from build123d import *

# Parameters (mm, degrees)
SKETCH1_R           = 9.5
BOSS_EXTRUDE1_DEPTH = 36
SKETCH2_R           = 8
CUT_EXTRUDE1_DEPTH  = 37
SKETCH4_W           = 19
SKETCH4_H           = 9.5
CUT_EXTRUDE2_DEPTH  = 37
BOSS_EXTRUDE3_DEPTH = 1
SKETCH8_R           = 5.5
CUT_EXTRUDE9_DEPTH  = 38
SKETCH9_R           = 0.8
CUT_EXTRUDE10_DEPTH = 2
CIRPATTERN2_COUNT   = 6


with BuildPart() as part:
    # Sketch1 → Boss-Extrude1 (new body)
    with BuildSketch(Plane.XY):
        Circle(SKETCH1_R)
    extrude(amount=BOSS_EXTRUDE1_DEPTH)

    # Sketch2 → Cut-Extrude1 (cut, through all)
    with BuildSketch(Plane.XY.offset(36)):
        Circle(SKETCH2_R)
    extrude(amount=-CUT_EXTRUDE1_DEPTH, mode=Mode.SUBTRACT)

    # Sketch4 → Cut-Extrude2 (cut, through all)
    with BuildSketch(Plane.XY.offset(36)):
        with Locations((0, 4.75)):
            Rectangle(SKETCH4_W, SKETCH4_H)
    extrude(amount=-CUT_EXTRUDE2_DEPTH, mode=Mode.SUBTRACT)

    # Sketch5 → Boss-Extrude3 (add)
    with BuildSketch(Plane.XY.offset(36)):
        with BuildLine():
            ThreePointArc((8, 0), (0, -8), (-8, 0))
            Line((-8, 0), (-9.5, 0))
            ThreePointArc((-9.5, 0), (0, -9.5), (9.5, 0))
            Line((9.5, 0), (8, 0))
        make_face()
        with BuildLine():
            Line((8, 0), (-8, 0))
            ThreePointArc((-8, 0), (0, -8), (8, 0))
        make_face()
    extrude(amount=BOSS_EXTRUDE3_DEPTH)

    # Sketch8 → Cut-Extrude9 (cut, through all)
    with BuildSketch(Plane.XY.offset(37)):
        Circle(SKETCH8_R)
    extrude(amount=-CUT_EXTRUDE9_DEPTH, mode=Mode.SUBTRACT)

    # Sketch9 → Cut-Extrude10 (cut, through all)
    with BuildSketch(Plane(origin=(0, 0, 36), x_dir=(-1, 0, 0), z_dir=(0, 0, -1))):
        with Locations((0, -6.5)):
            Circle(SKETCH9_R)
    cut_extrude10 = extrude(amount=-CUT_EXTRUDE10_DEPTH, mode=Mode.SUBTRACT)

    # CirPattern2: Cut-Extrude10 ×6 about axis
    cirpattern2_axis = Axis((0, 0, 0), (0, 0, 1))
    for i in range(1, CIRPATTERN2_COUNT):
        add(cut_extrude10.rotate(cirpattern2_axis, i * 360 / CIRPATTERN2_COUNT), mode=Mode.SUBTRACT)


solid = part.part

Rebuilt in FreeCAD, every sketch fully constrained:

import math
import FreeCAD as App
import Part
import Sketcher

V = App.Vector

doc = App.newDocument("Part")
params = doc.addObject("Spreadsheet::Sheet", "Params")
for row, (alias, value) in enumerate([
    ("sketch1_diameter", "19 mm"),
    ("pad1_length", "36 mm"),
    ("sketch2_diameter", "16 mm"),
    ("sketch3_width", "19 mm"),
    ("sketch3_height", "9.5 mm"),
    ("sketch4_radius", "9.5 mm"),
    ("pad2_length", "1 mm"),
    ("sketch5_diameter", "11 mm"),
    ("sketch6_diameter", "1.6 mm"),
], start=1):
    params.set(f"A{row}", alias)
    params.set(f"B{row}", "=" + value)
    params.setAlias(f"B{row}", alias)

body = doc.addObject("PartDesign::Body", "Body")

# Sketch on XY plane
sketch1 = body.newObject("Sketcher::SketchObject", "Sketch")
sketch1.AttachmentSupport = (doc.getObject("XY_Plane"), [""])
sketch1.MapMode = "FlatFace"
sketch1.addGeometry(Part.Circle(V(0, 0, 0), V(0, 0, 1), 9.5), False)
sketch1.addConstraint([
    Sketcher.Constraint("Coincident", 0, 3, -1, 1),
    Sketcher.Constraint("Diameter", 0, 19.0),
])
sketch1.setExpression("Constraints[1]", "Params.sketch1_diameter")
pad1 = body.newObject("PartDesign::Pad", "Pad")
pad1.Profile = sketch1
pad1.setExpression("Length", "Params.pad1_length")

# Sketch on XY plane
sketch2 = body.newObject("Sketcher::SketchObject", "Sketch001")
sketch2.AttachmentSupport = (doc.getObject("XY_Plane"), [""])
sketch2.MapMode = "FlatFace"
sketch2.AttachmentOffset = App.Placement(V(0, 0, 36), App.Rotation())
sketch2.addGeometry(Part.Circle(V(0, 0, 0), V(0, 0, 1), 8), False)
sketch2.addConstraint([
    Sketcher.Constraint("Coincident", 0, 3, -1, 1),
    Sketcher.Constraint("Diameter", 0, 16.0),
])
sketch2.setExpression("Constraints[1]", "Params.sketch2_diameter")
pocket1 = body.newObject("PartDesign::Pocket", "Pocket")
pocket1.Profile = sketch2
pocket1.Type = "ThroughAll"

# Sketch on XY plane
sketch3 = body.newObject("Sketcher::SketchObject", "Sketch002")
sketch3.AttachmentSupport = (doc.getObject("XY_Plane"), [""])
sketch3.MapMode = "FlatFace"
sketch3.AttachmentOffset = App.Placement(V(0, 0, 36), App.Rotation())
sketch3.addGeometry([
    Part.LineSegment(V(-9.5, 9.5, 0), V(-9.5, 0, 0)),
    Part.LineSegment(V(-9.5, 0, 0), V(9.5, 0, 0)),
    Part.LineSegment(V(9.5, 0, 0), V(9.5, 9.5, 0)),
    Part.LineSegment(V(9.5, 9.5, 0), V(-9.5, 9.5, 0)),
], False)
sketch3.addConstraint([
    Sketcher.Constraint("Coincident", 0, 2, 1, 1),
    Sketcher.Constraint("Coincident", 1, 2, 2, 1),
    Sketcher.Constraint("Coincident", 2, 2, 3, 1),
    Sketcher.Constraint("Coincident", 3, 2, 0, 1),
    Sketcher.Constraint("Vertical", 0),
    Sketcher.Constraint("Horizontal", 1),
    Sketcher.Constraint("Vertical", 2),
    Sketcher.Constraint("Horizontal", 3),
    Sketcher.Constraint("Symmetric", 0, 2, 1, 2, -1, 1),
    Sketcher.Constraint("DistanceX", 1, 1, 1, 2, 19.0),
    Sketcher.Constraint("DistanceY", 0, 2, 0, 1, 9.5),
])
sketch3.setExpression("Constraints[9]", "Params.sketch3_width")
sketch3.setExpression("Constraints[10]", "Params.sketch3_height")
pocket2 = body.newObject("PartDesign::Pocket", "Pocket001")
pocket2.Profile = sketch3
pocket2.Type = "ThroughAll"

# Sketch on XY plane
sketch4 = body.newObject("Sketcher::SketchObject", "Sketch003")
sketch4.AttachmentSupport = (doc.getObject("XY_Plane"), [""])
sketch4.MapMode = "FlatFace"
sketch4.AttachmentOffset = App.Placement(V(0, 0, 36), App.Rotation())
sketch4.addGeometry([
    Part.ArcOfCircle(Part.Circle(V(0, 0, 0), V(0, 0, 1), 9.5), math.radians(180), math.radians(360)),
    Part.LineSegment(V(9.5, 0, 0), V(-9.5, 0, 0)),
], False)
sketch4.addConstraint([
    Sketcher.Constraint("Coincident", 0, 1, 1, 2),
    Sketcher.Constraint("Coincident", 1, 1, 0, 2),
    Sketcher.Constraint("Horizontal", 1),
    Sketcher.Constraint("Coincident", 0, 3, -1, 1),
    Sketcher.Constraint("PointOnObject", 0, 1, -1),
    Sketcher.Constraint("Radius", 0, 9.5),
])
sketch4.setExpression("Constraints[5]", "Params.sketch4_radius")
pad2 = body.newObject("PartDesign::Pad", "Pad001")
pad2.Profile = sketch4
pad2.setExpression("Length", "Params.pad2_length")

# Sketch on XY plane
sketch5 = body.newObject("Sketcher::SketchObject", "Sketch004")
sketch5.AttachmentSupport = (doc.getObject("XY_Plane"), [""])
sketch5.MapMode = "FlatFace"
sketch5.AttachmentOffset = App.Placement(V(0, 0, 37), App.Rotation())
sketch5.addGeometry(Part.Circle(V(0, 0, 0), V(0, 0, 1), 5.5), False)
sketch5.addConstraint([
    Sketcher.Constraint("Coincident", 0, 3, -1, 1),
    Sketcher.Constraint("Diameter", 0, 11.0),
])
sketch5.setExpression("Constraints[1]", "Params.sketch5_diameter")
pocket3 = body.newObject("PartDesign::Pocket", "Pocket002")
pocket3.Profile = sketch5
pocket3.Type = "ThroughAll"

# Sketch on XY plane
sketch6 = body.newObject("Sketcher::SketchObject", "Sketch005")
sketch6.AttachmentSupport = (doc.getObject("XY_Plane"), [""])
sketch6.MapMode = "FlatFace"
sketch6.AttachmentOffset = App.Placement(V(0, 0, 36), App.Rotation())
sketch6.addGeometry(Part.Circle(V(0, -6.5, 0), V(0, 0, 1), 0.8), False)
sketch6.addConstraint([
    Sketcher.Constraint("PointOnObject", 0, 3, -2),
    Sketcher.Constraint("Diameter", 0, 1.6),
    Sketcher.Constraint("DistanceY", 0, 3, -1, 1, 6.5),
])
sketch6.setExpression("Constraints[1]", "Params.sketch6_diameter")
pocket4 = body.newObject("PartDesign::Pocket", "Pocket003")
pocket4.Profile = sketch6
pocket4.Type = "ThroughAll"
pocket4.Reversed = True
doc.recompute()

polarpattern = body.newObject("PartDesign::PolarPattern", "PolarPattern")
polarpattern.Originals = [pocket4]
polarpattern.Axis = (doc.getObject("Z_Axis"), [""])
polarpattern.Angle = 360
polarpattern.Occurrences = 6
body.Tip = polarpattern

doc.recompute()
